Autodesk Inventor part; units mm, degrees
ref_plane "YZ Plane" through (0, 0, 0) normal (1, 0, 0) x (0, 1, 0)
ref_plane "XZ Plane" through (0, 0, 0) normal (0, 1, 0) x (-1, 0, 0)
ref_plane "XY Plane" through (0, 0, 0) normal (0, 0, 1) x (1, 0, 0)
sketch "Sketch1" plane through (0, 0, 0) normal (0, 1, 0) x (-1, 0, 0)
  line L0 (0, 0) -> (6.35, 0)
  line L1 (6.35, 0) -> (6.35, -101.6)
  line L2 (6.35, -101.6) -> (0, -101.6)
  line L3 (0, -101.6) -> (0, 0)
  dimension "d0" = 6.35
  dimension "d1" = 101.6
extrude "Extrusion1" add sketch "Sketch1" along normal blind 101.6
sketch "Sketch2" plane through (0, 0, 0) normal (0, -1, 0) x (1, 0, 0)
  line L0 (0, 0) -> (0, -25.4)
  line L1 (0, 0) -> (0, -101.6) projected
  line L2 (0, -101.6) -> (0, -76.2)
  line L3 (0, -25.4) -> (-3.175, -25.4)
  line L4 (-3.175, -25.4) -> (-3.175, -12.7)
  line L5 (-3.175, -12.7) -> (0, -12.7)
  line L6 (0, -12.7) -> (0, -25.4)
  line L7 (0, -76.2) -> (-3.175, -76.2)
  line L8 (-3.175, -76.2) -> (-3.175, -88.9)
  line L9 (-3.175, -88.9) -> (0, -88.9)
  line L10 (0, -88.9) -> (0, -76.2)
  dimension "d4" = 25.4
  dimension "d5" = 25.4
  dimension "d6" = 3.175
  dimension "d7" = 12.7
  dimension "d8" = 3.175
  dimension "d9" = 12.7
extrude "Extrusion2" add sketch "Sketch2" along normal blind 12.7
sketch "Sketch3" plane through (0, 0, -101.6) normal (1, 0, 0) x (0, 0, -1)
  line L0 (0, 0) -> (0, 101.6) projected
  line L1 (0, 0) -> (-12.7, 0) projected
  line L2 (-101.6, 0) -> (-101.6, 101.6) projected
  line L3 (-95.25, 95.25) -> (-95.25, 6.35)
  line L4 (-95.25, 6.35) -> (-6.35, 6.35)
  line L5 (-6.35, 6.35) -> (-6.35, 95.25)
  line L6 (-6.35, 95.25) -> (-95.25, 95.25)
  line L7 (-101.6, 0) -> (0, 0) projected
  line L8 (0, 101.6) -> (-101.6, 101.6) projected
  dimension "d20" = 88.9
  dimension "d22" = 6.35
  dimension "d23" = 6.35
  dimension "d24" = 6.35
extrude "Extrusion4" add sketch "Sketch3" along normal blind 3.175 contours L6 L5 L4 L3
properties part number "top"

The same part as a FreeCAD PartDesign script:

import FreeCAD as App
import Part
import Sketcher

V = App.Vector
Q = App.Units.Quantity

doc = App.newDocument("Part")
body = doc.addObject("PartDesign::Body", "Body")

# Sketch on XZ plane
sketch1 = doc.addObject("Sketcher::SketchObject", "Sketch")
body.addObject(sketch1)
sketch1.AttachmentSupport = (doc.XZ_Plane, [""])
sketch1.MapMode = "FlatFace"
sketch1.addGeometry([
    Part.LineSegment(V(-6.35, 0, 0), V(0, 0, 0)),
    Part.LineSegment(V(0, 0, 0), V(0, -101.6, 0)),
    Part.LineSegment(V(0, -101.6, 0), V(-6.35, -101.6, 0)),
    Part.LineSegment(V(-6.35, -101.6, 0), V(-6.35, 0, 0)),
], False)
sketch1.addConstraint([
    Sketcher.Constraint("Coincident", 0, 2, 1, 1),
    Sketcher.Constraint("Coincident", 1, 2, 2, 1),
    Sketcher.Constraint("Coincident", 2, 2, 3, 1),
    Sketcher.Constraint("Coincident", 3, 2, 0, 1),
    Sketcher.Constraint("Horizontal", 0),
    Sketcher.Constraint("Vertical", 1),
    Sketcher.Constraint("Horizontal", 2),
    Sketcher.Constraint("Vertical", 3),
    Sketcher.Constraint("Coincident", 0, 2, -1, 1),
    Sketcher.Constraint("DistanceY", 1, 2, 1, 1, Q("4 in")),
    Sketcher.Constraint("DistanceX", 0, 1, 0, 2, Q("0.25 in")),
])
pad1 = doc.addObject("PartDesign::Pad", "Pad")
body.addObject(pad1)
pad1.Profile = sketch1
pad1.Length = Q("4 in")
pad1.Reversed = True

# Sketch on XZ plane
sketch2 = doc.addObject("Sketcher::SketchObject", "Sketch001")
body.addObject(sketch2)
sketch2.AttachmentSupport = (doc.XZ_Plane, [""])
sketch2.MapMode = "FlatFace"
sketch2.addGeometry([
    Part.LineSegment(V(0, -88.9, 0), V(0, -76.2, 0)),  # 0
    Part.LineSegment(V(0, -76.2, 0), V(-3.175, -76.2, 0)),  # 1
    Part.LineSegment(V(-3.175, -76.2, 0), V(-3.175, -88.9, 0)),  # 2
    Part.LineSegment(V(-3.175, -88.9, 0), V(0, -88.9, 0)),  # 3
    Part.LineSegment(V(0, -25.4, 0), V(0, -12.7, 0)),  # 4
    Part.LineSegment(V(0, -12.7, 0), V(-3.175, -12.7, 0)),  # 5
    Part.LineSegment(V(-3.175, -12.7, 0), V(-3.175, -25.4, 0)),  # 6
    Part.LineSegment(V(-3.175, -25.4, 0), V(0, -25.4, 0)),  # 7
], False)
sketch2.addConstraint([
    Sketcher.Constraint("Coincident", 0, 2, 1, 1),
    Sketcher.Constraint("Coincident", 1, 2, 2, 1),
    Sketcher.Constraint("Coincident", 2, 2, 3, 1),
    Sketcher.Constraint("Coincident", 3, 2, 0, 1),
    Sketcher.Constraint("Coincident", 4, 2, 5, 1),
    Sketcher.Constraint("Coincident", 5, 2, 6, 1),
    Sketcher.Constraint("Coincident", 6, 2, 7, 1),
    Sketcher.Constraint("Coincident", 7, 2, 4, 1),
    Sketcher.Constraint("Vertical", 0),
    Sketcher.Constraint("Horizontal", 1),
    Sketcher.Constraint("Vertical", 2),
    Sketcher.Constraint("Horizontal", 3),
    Sketcher.Constraint("Vertical", 4),
    Sketcher.Constraint("Horizontal", 5),
    Sketcher.Constraint("Vertical", 6),
    Sketcher.Constraint("Horizontal", 7),
    Sketcher.Constraint("PointOnObject", 0, 2, -2),
    Sketcher.Constraint("PointOnObject", 4, 2, -2),
    Sketcher.Constraint("Vertical", 2, 2, 5, 2),
    Sketcher.Constraint("Equal", 2, 4),
    Sketcher.Constraint("DistanceY", 0, 1, 0, 2, Q("0.5 in")),
    Sketcher.Constraint("DistanceY", 6, 2, -1, 1, Q("1 in")),
    Sketcher.Constraint("DistanceX", 1, 2, 1, 1, Q("0.125 in")),
    Sketcher.Constraint("DistanceY", 0, 2, -1, 1, Q("3 in")),
])
pad2 = doc.addObject("PartDesign::Pad", "Pad001")
body.addObject(pad2)
pad2.Profile = sketch2
pad2.Length = Q("0.5 in")

# Sketch on YZ plane
sketch3 = doc.addObject("Sketcher::SketchObject", "Sketch002")
body.addObject(sketch3)
sketch3.AttachmentSupport = (doc.YZ_Plane, [""])
sketch3.MapMode = "FlatFace"
sketch3.addGeometry([
    Part.LineSegment(V(95.25, -95.25, 0), V(95.25, -6.35, 0)),
    Part.LineSegment(V(95.25, -6.35, 0), V(6.35, -6.35, 0)),
    Part.LineSegment(V(6.35, -6.35, 0), V(6.35, -95.25, 0)),
    Part.LineSegment(V(6.35, -95.25, 0), V(95.25, -95.25, 0)),
], False)
sketch3.addConstraint([
    Sketcher.Constraint("Coincident", 0, 2, 1, 1),
    Sketcher.Constraint("Coincident", 1, 2, 2, 1),
    Sketcher.Constraint("Coincident", 2, 2, 3, 1),
    Sketcher.Constraint("Coincident", 3, 2, 0, 1),
    Sketcher.Constraint("Vertical", 0),
    Sketcher.Constraint("Horizontal", 1),
    Sketcher.Constraint("Vertical", 2),
    Sketcher.Constraint("Horizontal", 3),
    Sketcher.Constraint("Equal", 3, 0),
    Sketcher.Constraint("DistanceX", 1, 2, 1, 1, Q("3.5 in")),
    Sketcher.Constraint("DistanceY", 0, 2, -1, 1, Q("0.25 in")),
    Sketcher.Constraint("DistanceX", -1, 1, 1, 2, Q("0.25 in")),
])
pad3 = doc.addObject("PartDesign::Pad", "Pad002")
body.addObject(pad3)
pad3.Profile = sketch3
pad3.Length = Q("0.125 in")

doc.recompute()
